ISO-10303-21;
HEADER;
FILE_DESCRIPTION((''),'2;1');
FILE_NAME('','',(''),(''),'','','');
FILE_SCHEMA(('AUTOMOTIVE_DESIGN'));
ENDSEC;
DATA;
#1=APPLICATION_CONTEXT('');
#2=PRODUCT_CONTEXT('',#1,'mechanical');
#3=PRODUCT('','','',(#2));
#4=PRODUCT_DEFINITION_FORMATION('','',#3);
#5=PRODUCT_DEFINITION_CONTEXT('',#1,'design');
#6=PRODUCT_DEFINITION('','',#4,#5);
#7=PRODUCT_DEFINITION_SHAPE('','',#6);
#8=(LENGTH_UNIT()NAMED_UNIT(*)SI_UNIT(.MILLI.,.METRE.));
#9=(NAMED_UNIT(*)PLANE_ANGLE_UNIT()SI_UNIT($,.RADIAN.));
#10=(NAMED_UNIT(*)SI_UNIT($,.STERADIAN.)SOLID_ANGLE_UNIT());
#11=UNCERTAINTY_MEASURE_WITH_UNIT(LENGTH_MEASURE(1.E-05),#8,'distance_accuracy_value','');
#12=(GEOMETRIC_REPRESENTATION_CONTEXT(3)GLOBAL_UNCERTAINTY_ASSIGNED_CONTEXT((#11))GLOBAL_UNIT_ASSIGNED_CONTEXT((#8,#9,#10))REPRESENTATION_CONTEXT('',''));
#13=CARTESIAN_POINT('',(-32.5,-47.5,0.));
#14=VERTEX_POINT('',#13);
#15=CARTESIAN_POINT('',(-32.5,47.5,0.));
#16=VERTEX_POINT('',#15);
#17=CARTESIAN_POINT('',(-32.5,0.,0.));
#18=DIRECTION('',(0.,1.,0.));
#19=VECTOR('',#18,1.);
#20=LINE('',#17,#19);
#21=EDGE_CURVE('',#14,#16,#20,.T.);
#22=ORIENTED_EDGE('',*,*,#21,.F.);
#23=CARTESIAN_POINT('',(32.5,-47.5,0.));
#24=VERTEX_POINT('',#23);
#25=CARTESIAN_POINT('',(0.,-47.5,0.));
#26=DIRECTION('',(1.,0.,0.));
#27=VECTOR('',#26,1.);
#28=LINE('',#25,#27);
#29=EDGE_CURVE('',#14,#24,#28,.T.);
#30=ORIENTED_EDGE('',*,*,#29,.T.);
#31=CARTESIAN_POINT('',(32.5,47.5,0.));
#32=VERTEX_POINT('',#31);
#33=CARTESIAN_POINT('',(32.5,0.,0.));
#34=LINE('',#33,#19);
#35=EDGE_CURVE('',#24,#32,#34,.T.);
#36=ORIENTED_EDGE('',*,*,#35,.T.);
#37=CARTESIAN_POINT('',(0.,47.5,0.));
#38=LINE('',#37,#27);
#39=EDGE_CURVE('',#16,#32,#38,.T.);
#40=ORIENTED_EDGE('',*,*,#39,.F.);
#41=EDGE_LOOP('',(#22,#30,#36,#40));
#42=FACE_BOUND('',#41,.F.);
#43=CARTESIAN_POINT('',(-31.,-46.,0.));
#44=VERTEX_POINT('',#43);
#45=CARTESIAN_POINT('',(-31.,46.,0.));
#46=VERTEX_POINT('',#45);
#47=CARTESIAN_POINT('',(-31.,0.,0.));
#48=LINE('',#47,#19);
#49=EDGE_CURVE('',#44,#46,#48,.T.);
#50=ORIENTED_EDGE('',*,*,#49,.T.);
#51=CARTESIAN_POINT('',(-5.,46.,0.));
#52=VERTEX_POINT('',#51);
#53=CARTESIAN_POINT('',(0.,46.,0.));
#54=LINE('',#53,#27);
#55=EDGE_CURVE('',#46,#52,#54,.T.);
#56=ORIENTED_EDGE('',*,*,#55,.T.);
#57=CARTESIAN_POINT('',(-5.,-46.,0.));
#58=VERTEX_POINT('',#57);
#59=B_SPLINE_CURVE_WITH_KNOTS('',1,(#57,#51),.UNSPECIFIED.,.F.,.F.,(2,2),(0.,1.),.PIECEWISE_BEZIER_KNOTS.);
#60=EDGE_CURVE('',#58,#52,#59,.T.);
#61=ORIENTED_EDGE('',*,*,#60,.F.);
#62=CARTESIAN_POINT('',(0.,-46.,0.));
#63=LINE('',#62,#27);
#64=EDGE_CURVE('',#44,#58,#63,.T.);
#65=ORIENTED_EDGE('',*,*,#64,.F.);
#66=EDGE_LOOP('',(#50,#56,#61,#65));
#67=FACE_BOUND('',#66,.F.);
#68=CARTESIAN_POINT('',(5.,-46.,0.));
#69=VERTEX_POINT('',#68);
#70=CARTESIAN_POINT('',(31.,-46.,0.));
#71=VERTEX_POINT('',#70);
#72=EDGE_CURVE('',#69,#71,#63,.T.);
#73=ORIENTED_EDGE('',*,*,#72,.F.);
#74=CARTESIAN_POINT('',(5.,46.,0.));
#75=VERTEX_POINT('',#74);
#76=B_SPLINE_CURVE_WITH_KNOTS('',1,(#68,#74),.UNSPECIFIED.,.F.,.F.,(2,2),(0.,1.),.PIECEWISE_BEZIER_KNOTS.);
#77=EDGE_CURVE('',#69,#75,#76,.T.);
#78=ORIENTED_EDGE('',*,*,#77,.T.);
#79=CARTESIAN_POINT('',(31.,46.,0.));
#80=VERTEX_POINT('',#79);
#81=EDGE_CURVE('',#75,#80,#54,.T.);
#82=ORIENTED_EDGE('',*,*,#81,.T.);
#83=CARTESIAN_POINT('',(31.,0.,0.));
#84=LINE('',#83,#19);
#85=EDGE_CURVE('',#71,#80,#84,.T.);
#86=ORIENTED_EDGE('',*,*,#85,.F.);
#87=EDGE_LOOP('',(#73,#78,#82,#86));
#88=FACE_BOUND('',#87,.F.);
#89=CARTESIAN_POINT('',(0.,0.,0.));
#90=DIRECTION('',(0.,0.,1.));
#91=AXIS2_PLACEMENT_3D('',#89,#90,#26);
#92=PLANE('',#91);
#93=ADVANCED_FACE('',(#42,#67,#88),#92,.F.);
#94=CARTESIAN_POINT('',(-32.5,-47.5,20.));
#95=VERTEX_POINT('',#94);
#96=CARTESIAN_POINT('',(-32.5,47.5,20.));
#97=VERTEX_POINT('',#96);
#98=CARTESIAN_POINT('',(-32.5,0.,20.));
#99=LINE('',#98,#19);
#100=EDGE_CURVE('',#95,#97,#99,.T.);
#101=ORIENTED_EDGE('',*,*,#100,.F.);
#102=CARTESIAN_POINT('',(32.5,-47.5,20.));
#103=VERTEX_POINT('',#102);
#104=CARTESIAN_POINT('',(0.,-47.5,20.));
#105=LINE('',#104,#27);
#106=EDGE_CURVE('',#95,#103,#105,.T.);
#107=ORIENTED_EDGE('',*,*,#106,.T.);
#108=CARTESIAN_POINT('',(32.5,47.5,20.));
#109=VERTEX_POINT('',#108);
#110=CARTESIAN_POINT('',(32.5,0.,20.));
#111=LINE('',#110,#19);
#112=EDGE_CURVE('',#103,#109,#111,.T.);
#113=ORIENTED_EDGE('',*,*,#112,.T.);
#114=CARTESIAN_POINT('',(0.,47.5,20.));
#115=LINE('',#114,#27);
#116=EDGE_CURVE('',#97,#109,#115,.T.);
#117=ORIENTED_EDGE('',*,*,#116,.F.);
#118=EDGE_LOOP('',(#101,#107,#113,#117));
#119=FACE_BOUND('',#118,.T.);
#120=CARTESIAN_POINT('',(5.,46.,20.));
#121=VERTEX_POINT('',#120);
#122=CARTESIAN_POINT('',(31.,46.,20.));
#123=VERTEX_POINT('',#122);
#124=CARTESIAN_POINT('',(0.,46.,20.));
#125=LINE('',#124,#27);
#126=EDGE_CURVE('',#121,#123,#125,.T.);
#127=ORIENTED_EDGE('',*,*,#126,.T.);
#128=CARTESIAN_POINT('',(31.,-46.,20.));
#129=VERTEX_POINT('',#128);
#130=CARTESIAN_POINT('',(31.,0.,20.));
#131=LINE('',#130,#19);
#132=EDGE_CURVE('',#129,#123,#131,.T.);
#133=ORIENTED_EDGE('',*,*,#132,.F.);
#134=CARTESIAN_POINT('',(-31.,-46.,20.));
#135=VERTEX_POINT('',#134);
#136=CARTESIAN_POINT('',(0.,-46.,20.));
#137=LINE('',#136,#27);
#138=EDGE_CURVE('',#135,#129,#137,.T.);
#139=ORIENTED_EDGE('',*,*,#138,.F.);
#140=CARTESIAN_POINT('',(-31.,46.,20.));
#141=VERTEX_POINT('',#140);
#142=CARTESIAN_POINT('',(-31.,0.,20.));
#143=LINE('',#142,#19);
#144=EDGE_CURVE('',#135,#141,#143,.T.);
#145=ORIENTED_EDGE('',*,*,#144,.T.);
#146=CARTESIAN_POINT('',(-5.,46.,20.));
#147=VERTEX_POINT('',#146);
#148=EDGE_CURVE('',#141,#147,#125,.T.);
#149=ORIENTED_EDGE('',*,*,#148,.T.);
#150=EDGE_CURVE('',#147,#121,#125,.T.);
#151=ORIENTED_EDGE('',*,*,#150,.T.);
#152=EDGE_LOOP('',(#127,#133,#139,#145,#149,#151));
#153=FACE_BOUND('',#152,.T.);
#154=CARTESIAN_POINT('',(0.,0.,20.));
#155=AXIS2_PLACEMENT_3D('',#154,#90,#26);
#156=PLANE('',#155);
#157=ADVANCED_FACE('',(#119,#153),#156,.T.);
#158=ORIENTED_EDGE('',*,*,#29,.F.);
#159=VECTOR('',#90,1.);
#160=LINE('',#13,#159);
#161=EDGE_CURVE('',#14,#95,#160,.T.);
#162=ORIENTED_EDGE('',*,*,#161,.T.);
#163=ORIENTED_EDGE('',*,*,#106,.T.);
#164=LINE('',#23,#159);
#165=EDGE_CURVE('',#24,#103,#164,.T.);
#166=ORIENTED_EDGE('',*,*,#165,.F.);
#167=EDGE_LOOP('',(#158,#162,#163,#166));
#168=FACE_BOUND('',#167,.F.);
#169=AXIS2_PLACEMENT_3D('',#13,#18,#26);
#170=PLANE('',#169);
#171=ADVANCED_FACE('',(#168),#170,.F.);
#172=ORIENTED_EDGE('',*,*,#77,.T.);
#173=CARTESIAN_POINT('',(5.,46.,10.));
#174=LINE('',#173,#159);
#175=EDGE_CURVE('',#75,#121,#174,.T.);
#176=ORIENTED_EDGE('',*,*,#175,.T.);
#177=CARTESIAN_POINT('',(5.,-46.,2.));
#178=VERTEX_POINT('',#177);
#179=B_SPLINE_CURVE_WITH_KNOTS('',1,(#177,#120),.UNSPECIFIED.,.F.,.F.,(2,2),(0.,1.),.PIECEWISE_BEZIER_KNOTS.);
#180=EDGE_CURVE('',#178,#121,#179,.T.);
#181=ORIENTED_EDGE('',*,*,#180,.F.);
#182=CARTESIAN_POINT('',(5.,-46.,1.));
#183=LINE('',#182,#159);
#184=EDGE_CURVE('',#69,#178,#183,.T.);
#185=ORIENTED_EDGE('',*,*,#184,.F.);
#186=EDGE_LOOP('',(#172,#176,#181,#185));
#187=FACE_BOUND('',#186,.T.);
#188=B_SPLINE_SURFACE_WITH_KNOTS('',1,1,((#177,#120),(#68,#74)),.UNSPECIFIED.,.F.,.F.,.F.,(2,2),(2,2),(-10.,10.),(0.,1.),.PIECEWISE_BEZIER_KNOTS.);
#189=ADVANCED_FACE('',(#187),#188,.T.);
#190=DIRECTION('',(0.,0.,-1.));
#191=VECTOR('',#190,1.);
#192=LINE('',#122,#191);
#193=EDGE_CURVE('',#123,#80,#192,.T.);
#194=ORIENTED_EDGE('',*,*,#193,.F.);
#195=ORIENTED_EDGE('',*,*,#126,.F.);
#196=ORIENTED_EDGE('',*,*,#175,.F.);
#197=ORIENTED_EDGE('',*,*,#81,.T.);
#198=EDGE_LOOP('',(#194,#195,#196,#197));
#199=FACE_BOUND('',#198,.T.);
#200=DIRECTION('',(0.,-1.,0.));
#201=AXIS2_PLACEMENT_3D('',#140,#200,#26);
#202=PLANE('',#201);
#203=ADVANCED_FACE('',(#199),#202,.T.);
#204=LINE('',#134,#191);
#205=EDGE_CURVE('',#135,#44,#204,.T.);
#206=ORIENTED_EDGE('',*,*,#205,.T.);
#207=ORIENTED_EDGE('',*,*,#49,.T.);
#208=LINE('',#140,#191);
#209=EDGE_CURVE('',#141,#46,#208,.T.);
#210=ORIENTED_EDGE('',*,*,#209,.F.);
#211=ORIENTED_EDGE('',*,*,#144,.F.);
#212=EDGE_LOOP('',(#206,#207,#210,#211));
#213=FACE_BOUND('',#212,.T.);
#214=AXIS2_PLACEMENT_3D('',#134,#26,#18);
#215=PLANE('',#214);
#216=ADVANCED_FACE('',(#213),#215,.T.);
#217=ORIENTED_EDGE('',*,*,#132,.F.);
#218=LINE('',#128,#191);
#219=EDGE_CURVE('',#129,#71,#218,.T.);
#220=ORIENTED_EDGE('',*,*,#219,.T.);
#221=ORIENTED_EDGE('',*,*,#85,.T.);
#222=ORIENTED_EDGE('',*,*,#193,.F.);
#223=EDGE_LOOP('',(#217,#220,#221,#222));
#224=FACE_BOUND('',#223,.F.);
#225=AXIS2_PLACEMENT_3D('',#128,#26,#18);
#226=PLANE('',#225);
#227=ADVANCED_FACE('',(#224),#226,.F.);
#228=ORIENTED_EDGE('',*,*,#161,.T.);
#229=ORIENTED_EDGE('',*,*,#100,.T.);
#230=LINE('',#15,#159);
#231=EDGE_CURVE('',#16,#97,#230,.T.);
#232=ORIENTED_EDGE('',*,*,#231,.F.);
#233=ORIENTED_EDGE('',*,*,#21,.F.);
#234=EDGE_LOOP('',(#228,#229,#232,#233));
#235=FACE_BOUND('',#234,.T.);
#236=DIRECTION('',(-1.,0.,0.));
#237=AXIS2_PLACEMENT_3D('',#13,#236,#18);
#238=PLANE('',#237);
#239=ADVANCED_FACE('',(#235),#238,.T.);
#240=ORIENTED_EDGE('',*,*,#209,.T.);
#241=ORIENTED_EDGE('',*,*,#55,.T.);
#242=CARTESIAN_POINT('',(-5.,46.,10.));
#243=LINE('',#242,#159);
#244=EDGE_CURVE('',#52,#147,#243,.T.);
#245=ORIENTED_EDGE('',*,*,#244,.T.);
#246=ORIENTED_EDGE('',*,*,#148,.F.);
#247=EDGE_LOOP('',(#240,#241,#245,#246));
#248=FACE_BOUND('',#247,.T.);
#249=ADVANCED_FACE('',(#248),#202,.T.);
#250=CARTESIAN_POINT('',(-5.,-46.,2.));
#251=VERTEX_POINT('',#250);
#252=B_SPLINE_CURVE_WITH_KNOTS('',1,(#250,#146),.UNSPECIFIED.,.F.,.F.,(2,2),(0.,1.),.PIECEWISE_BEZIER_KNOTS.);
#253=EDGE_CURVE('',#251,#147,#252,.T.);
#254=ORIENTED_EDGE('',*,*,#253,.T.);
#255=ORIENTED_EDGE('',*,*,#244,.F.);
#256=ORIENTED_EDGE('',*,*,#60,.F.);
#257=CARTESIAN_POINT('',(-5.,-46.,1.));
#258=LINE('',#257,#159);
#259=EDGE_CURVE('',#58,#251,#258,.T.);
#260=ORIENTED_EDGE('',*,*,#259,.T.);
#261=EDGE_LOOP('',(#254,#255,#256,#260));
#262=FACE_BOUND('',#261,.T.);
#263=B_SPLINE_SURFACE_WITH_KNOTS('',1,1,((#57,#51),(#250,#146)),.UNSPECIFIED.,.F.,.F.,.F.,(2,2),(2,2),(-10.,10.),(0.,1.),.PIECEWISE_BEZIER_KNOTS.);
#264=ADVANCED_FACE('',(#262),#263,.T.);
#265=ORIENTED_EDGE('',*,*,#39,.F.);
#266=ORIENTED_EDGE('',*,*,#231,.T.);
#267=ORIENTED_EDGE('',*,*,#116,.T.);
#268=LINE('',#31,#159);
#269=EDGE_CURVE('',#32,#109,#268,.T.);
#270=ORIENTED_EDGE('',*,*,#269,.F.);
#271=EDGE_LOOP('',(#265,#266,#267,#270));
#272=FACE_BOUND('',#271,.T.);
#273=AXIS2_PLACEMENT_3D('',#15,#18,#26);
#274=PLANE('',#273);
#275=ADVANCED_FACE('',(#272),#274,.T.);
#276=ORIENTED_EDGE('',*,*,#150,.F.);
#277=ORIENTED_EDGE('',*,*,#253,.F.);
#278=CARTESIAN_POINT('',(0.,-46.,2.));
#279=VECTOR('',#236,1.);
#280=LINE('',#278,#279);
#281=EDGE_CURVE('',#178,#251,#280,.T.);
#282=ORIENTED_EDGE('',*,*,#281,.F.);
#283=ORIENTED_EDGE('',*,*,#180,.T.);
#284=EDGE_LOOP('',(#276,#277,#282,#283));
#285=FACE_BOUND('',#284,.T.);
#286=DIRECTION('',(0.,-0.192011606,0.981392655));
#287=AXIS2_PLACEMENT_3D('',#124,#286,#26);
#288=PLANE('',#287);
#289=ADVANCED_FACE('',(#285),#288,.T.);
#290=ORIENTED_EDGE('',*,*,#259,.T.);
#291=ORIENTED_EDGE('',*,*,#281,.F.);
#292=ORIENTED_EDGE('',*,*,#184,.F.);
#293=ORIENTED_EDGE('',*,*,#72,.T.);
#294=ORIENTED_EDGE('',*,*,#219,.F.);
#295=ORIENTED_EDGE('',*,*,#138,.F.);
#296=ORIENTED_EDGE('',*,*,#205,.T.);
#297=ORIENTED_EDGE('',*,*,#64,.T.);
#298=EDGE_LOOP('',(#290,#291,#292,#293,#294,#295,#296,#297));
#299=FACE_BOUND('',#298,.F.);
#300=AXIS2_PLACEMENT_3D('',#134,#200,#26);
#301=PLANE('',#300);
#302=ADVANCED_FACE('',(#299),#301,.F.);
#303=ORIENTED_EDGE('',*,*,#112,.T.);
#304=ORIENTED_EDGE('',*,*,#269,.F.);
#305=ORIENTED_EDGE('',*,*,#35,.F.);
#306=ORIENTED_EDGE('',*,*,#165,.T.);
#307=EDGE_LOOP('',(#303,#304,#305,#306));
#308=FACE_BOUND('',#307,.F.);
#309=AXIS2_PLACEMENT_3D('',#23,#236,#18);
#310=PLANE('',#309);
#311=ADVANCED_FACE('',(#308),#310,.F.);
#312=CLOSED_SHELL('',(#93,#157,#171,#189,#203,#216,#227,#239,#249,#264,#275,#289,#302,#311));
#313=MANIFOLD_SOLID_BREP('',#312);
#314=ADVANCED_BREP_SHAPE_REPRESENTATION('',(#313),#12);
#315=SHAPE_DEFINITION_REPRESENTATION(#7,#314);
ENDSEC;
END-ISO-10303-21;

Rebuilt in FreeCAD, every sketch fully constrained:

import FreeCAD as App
import Part
import Sketcher


def add_polygon(sketch, points):
    """Adds a closed chain of lines whose ends are joined by coincident constraints."""
    first, n = sketch.GeometryCount, len(points)
    for a, b in zip(points, points[1:] + points[:1]):
        sketch.addGeometry(Part.LineSegment(App.Vector(*a, 0), App.Vector(*b, 0)), False)
    for i in range(n):
        sketch.addConstraint(Sketcher.Constraint("Coincident", first + i, 2, first + (i + 1) % n, 1))

doc = App.newDocument("Part")
params = doc.addObject("Spreadsheet::Sheet", "Params")
for row, (alias, value) in enumerate([
    ("sketch1_width", "65 mm"),
    ("sketch1_height", "95 mm"),
    ("pad1_length", "20 mm"),
    ("sketch2_width", "62 mm"),
    ("sketch2_height", "92 mm"),
    ("sketch3_width", "10 mm"),
    ("sketch3_height", "2 mm"),
    ("sketch4_width", "10 mm"),
    ("sketch4_height", "20 mm"),
], start=1):
    params.set(f"A{row}", alias)
    params.set(f"B{row}", "=" + value)
    params.setAlias(f"B{row}", alias)

body = doc.addObject("PartDesign::Body", "Body")

# Sketch on XY plane
sketch1 = doc.addObject("Sketcher::SketchObject", "Sketch")
body.addObject(sketch1)
sketch1.AttachmentSupport = (doc.XY_Plane, [""])
sketch1.MapMode = "FlatFace"
add_polygon(sketch1, [(-32, 48), (-32, -48), (32, -48), (32, 48)])  # lines 0-3
sketch1.addConstraint([
    Sketcher.Constraint("Vertical", 0),
    Sketcher.Constraint("Horizontal", 1),
    Sketcher.Constraint("Vertical", 2),
    Sketcher.Constraint("Horizontal", 3),
    Sketcher.Constraint("Symmetric", 0, 2, 2, 2, -1, 1),
    Sketcher.Constraint("DistanceX", 1, 1, 1, 2, 65.0),
    Sketcher.Constraint("DistanceY", 0, 2, 0, 1, 95.0),
])
sketch1.setExpression("Constraints[9]", "Params.sketch1_width")
sketch1.setExpression("Constraints[10]", "Params.sketch1_height")
pad1 = doc.addObject("PartDesign::Pad", "Pad")
body.addObject(pad1)
pad1.Profile = sketch1
pad1.setExpression("Length", "Params.pad1_length")

# Sketch on XY plane
sketch2 = doc.addObject("Sketcher::SketchObject", "Sketch001")
body.addObject(sketch2)
sketch2.AttachmentSupport = (doc.XY_Plane, [""])
sketch2.MapMode = "FlatFace"
sketch2.AttachmentOffset = App.Placement(App.Vector(0, 0, 20), App.Rotation())
add_polygon(sketch2, [(-31, 46), (-31, -46), (31, -46), (31, 46)])  # lines 0-3
sketch2.addConstraint([
    Sketcher.Constraint("Vertical", 0),
    Sketcher.Constraint("Horizontal", 1),
    Sketcher.Constraint("Vertical", 2),
    Sketcher.Constraint("Horizontal", 3),
    Sketcher.Constraint("Symmetric", 0, 2, 2, 2, -1, 1),
    Sketcher.Constraint("DistanceX", 1, 1, 1, 2, 62.0),
    Sketcher.Constraint("DistanceY", 0, 2, 0, 1, 92.0),
])
sketch2.setExpression("Constraints[9]", "Params.sketch2_width")
sketch2.setExpression("Constraints[10]", "Params.sketch2_height")
pocket1 = doc.addObject("PartDesign::Pocket", "Pocket")
body.addObject(pocket1)
pocket1.Profile = sketch2
pocket1.Type = "ThroughAll"

# Sketch on XZ plane
sketch3 = doc.addObject("Sketcher::SketchObject", "Sketch002")
body.addObject(sketch3)
sketch3.AttachmentSupport = (doc.XZ_Plane, [""])
sketch3.MapMode = "FlatFace"
sketch3.AttachmentOffset = App.Placement(App.Vector(0, 0, 46), App.Rotation())
add_polygon(sketch3, [(5, 2), (5, 0), (-5, 0), (-5, 2)])  # lines 0-3
sketch3.addConstraint([
    Sketcher.Constraint("Vertical", 0),
    Sketcher.Constraint("Horizontal", 1),
    Sketcher.Constraint("Vertical", 2),
    Sketcher.Constraint("Horizontal", 3),
    Sketcher.Constraint("Symmetric", 0, 2, 1, 2, -1, 1),
    Sketcher.Constraint("DistanceX", 1, 2, 1, 1, 10.0),
    Sketcher.Constraint("DistanceY", 0, 2, 0, 1, 2.0),
])
sketch3.setExpression("Constraints[9]", "Params.sketch3_width")
sketch3.setExpression("Constraints[10]", "Params.sketch3_height")

# Sketch on XZ plane
sketch4 = doc.addObject("Sketcher::SketchObject", "Sketch003")
body.addObject(sketch4)
sketch4.AttachmentSupport = (doc.XZ_Plane, [""])
sketch4.MapMode = "FlatFace"
sketch4.AttachmentOffset = App.Placement(App.Vector(0, 0, -46), App.Rotation())
add_polygon(sketch4, [(-5, 20), (-5, 0), (5, 0), (5, 20)])  # lines 0-3
sketch4.addConstraint([
    Sketcher.Constraint("Vertical", 0),
    Sketcher.Constraint("Horizontal", 1),
    Sketcher.Constraint("Vertical", 2),
    Sketcher.Constraint("Horizontal", 3),
    Sketcher.Constraint("Symmetric", 0, 2, 1, 2, -1, 1),
    Sketcher.Constraint("DistanceX", 1, 1, 1, 2, 10.0),
    Sketcher.Constraint("DistanceY", 0, 2, 0, 1, 20.0),
])
sketch4.setExpression("Constraints[9]", "Params.sketch4_width")
sketch4.setExpression("Constraints[10]", "Params.sketch4_height")

additiveloft = doc.addObject("PartDesign::AdditiveLoft", "AdditiveLoft")
body.addObject(additiveloft)
additiveloft.Profile = sketch3
additiveloft.Sections = [sketch4]

doc.recompute()
